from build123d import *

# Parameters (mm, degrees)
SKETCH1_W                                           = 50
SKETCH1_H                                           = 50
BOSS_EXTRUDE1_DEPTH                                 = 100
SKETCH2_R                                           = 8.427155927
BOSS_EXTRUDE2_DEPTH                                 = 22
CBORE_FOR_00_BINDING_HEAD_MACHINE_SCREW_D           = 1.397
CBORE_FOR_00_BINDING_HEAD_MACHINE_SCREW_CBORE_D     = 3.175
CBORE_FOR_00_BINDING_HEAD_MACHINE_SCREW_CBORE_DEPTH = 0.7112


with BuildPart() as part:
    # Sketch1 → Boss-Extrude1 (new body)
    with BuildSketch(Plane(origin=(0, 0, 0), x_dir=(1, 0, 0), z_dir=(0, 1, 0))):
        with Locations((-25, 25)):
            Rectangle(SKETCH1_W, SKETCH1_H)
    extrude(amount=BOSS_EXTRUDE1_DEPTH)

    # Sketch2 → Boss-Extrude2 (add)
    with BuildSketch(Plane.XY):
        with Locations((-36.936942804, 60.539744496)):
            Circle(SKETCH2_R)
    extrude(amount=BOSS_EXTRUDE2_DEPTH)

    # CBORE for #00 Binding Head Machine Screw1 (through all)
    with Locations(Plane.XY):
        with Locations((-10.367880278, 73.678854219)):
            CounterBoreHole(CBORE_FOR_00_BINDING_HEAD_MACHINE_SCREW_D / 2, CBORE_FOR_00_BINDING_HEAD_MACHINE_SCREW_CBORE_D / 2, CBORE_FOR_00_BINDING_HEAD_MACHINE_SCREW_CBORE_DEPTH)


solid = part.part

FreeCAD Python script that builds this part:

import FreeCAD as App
import Part
import Sketcher
Q = App.Units.Quantity

doc = App.newDocument("Part")
body = doc.addObject("PartDesign::Body", "Body")

sketch1 = body.newObject("Sketcher::SketchObject", "Sketch")
sketch1.AttachmentSupport = (doc.getObject("XZ_Plane"), [""])
sketch1.MapMode = "FlatFace"
sketch1.addGeometry([
    Part.LineSegment(App.Vector(-50, -50, 0), App.Vector(-50, 0, 0)),
    Part.LineSegment(App.Vector(-50, 0, 0), App.Vector(0, 0, 0)),
    Part.LineSegment(App.Vector(0, 0, 0), App.Vector(0, -50, 0)),
    Part.LineSegment(App.Vector(0, -50, 0), App.Vector(-50, -50, 0)),
], False)
sketch1.addConstraint([
    Sketcher.Constraint("Coincident", 0, 2, 1, 1),
    Sketcher.Constraint("Coincident", 1, 2, 2, 1),
    Sketcher.Constraint("Coincident", 2, 2, 3, 1),
    Sketcher.Constraint("Coincident", 3, 2, 0, 1),
    Sketcher.Constraint("Vertical", 0),
    Sketcher.Constraint("Horizontal", 1),
    Sketcher.Constraint("Vertical", 2),
    Sketcher.Constraint("Horizontal", 3),
    Sketcher.Constraint("Coincident", 1, 2, -1, 1),
    Sketcher.Constraint("Equal", 3, 0),
    Sketcher.Constraint("DistanceX", 1, 1, 1, 2, Q("50 mm")),
])
pad1 = body.newObject("PartDesign::Pad", "Pad")
pad1.Profile = sketch1
pad1.Length = 100
pad1.Reversed = True

sketch2 = body.newObject("Sketcher::SketchObject", "Sketch001")
sketch2.AttachmentSupport = (doc.getObject("XY_Plane"), [""])
sketch2.MapMode = "FlatFace"
sketch2.addGeometry(Part.Circle(App.Vector(-36.936943, 60.539744, 0), App.Vector(0, 0, 1), 8.427156), False)
sketch2.addConstraint([
    Sketcher.Constraint("Diameter", 0, Q("16.854312 mm")),
    Sketcher.Constraint("DistanceX", 0, 3, -1, 1, Q("36.936943 mm")),
    Sketcher.Constraint("DistanceY", -1, 1, 0, 3, Q("60.539744 mm")),
])
pad2 = body.newObject("PartDesign::Pad", "Pad001")
pad2.Profile = sketch2
pad2.Length = 22

sketch3 = body.newObject("Sketcher::SketchObject", "Sketch002")
sketch3.AttachmentSupport = (doc.getObject("XY_Plane"), [""])
sketch3.MapMode = "FlatFace"
sketch3.addGeometry(Part.Circle(App.Vector(-10.36788, 73.678854, 0), App.Vector(0, 0, 1), 0.6985), False)
sketch3.addConstraint([
    Sketcher.Constraint("Diameter", 0, Q("1.397 mm")),
    Sketcher.Constraint("DistanceX", 0, 3, -1, 1, Q("10.36788 mm")),
    Sketcher.Constraint("DistanceY", -1, 1, 0, 3, Q("73.678854 mm")),
])
doc.recompute()
hole = body.newObject("PartDesign::Hole", "Hole")
hole.Profile = sketch3
hole.ThreadType = "None"
hole.Diameter = 1.397
hole.DepthType = "ThroughAll"
hole.HoleCutType = "Counterbore"
hole.HoleCutDiameter = 3.175
hole.HoleCutDepth = 0.7112

doc.recompute()
